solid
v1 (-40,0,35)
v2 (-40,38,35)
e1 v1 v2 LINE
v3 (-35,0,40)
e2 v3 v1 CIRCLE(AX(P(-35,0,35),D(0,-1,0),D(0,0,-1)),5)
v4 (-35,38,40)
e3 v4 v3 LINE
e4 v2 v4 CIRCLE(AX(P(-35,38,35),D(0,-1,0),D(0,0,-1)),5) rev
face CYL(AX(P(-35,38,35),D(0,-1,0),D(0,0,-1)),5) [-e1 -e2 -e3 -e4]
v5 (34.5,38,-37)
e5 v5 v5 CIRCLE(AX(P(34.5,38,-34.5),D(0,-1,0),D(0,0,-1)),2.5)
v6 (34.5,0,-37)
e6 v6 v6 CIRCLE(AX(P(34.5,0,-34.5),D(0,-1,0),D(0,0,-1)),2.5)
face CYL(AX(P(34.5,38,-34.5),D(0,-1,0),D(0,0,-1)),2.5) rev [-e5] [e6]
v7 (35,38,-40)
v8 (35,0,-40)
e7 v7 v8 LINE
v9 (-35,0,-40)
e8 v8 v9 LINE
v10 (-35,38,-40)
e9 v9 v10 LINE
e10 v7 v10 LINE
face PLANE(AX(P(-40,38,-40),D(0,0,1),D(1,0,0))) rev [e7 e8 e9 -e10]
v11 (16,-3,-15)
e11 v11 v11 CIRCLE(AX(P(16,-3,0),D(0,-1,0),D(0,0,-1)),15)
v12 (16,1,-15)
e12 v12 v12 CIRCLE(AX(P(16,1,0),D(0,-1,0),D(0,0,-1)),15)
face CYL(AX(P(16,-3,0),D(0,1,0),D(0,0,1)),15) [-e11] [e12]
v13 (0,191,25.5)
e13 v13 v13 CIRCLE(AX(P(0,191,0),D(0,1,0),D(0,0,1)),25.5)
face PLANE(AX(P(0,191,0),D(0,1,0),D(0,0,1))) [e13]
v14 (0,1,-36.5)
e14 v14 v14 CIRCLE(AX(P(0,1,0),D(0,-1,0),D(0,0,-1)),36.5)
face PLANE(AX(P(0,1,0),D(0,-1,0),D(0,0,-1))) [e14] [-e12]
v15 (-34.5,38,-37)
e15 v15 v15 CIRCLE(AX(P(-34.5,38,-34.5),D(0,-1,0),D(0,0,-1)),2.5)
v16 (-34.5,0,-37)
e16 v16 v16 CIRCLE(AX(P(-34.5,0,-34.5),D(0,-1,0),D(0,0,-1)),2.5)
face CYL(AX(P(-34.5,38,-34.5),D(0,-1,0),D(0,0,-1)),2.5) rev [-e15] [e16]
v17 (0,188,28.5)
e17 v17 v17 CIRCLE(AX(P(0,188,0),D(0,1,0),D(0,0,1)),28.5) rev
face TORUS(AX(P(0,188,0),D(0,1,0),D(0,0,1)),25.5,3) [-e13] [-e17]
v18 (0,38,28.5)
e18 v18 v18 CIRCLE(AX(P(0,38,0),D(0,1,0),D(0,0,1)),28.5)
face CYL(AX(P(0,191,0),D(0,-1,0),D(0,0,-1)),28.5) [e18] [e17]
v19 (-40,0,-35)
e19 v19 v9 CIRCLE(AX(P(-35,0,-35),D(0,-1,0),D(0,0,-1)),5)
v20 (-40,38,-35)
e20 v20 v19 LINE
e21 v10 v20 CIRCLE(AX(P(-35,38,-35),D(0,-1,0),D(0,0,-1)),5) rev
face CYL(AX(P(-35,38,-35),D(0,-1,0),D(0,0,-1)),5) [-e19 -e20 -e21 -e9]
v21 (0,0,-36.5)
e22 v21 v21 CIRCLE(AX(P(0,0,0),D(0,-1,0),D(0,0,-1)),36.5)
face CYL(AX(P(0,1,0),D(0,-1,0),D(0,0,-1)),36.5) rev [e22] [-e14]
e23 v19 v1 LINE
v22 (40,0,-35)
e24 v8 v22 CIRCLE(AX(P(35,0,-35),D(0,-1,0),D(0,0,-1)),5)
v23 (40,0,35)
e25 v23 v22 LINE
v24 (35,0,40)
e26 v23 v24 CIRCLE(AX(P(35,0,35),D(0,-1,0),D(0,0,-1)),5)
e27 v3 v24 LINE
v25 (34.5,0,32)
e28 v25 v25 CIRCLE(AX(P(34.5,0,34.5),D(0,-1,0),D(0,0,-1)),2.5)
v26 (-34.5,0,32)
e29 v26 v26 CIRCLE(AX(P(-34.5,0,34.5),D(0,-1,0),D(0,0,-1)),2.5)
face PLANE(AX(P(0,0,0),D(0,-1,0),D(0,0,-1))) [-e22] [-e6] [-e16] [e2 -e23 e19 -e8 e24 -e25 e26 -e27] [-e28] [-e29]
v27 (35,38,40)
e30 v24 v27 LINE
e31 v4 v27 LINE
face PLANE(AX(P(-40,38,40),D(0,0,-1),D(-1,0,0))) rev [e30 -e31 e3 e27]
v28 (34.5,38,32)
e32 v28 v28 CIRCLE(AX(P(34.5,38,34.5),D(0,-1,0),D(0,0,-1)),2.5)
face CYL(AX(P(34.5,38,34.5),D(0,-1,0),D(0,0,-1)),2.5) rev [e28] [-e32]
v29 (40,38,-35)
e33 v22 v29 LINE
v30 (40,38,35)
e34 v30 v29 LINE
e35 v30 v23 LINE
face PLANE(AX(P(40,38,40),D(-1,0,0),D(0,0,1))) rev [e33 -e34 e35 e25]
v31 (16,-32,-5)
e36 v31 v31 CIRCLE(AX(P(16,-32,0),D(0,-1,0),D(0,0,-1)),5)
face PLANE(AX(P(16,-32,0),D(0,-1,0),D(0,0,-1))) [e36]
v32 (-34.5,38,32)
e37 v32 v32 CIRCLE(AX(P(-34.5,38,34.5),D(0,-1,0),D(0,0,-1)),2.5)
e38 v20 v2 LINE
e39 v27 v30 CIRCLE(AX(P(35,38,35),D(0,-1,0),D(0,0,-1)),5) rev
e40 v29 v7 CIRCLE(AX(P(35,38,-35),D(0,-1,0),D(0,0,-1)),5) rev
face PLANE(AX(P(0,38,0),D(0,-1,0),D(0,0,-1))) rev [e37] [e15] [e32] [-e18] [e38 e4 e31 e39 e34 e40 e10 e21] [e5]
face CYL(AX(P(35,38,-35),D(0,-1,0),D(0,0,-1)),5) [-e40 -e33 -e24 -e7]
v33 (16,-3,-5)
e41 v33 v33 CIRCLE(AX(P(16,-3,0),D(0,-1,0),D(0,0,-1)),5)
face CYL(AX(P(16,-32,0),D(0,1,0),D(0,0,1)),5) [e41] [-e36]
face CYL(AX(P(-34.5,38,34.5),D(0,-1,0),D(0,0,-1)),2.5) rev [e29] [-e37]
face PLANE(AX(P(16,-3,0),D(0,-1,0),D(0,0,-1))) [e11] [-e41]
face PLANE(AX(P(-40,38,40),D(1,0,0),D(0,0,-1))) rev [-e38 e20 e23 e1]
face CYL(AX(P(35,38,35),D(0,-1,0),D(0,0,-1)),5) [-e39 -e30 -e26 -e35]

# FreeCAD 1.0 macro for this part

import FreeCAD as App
import Part
import Sketcher

V = App.Vector
Q = App.Units.Quantity


def edges_at(feature, points):
    """Names of the edges that pass closest to the given points."""
    edges = feature.Shape.Edges
    near = lambda p: min(range(len(edges)), key=lambda i: edges[i].distToShape(Part.Vertex(*p))[0])
    return sorted({f"Edge{near(p) + 1}" for p in points})


def add_polygon(sketch, points):
    """Adds a closed chain of lines whose ends are joined by coincident constraints."""
    first, n = sketch.GeometryCount, len(points)
    for a, b in zip(points, points[1:] + points[:1]):
        sketch.addGeometry(Part.LineSegment(App.Vector(*a, 0), App.Vector(*b, 0)), False)
    for i in range(n):
        sketch.addConstraint(Sketcher.Constraint("Coincident", first + i, 2, first + (i + 1) % n, 1))

doc = App.newDocument("Part")
params = doc.addObject("Spreadsheet::Sheet", "Params")
for row, (alias, value) in enumerate([
    ("sketch1_width", "80 mm"),
    ("pad1_length", "38 mm"),
    ("sketch2_diameter", "57 mm"),
    ("pad2_length", "153 mm"),
    ("sketch3_diameter", "73 mm"),
    ("pocket1_length", "1 mm"),
    ("sketch4_diameter", "30 mm"),
    ("pad3_length", "4 mm"),
    ("sketch5_diameter", "10 mm"),
    ("pad4_length", "29 mm"),
    ("fillet_radius", "5 mm"),
    ("sketch6_diameter", "5 mm"),
    ("pocket2_length", "38 mm"),
    ("sketch7_diameter", "5 mm"),
    ("pocket3_length", "38 mm"),
    ("fillet2_radius", "3 mm"),
], start=1):
    params.set(f"A{row}", alias)
    params.set(f"B{row}", "=" + value)
    params.setAlias(f"B{row}", alias)

body = doc.addObject("PartDesign::Body", "Body")

# Sketch on XZ plane
sketch1 = doc.addObject("Sketcher::SketchObject", "Sketch")
body.addObject(sketch1)
sketch1.AttachmentSupport = (doc.XZ_Plane, [""])
sketch1.MapMode = "FlatFace"
add_polygon(sketch1, [(-40, -40), (-40, 40), (40, 40), (40, -40)])  # lines 0-3
sketch1.addConstraint([
    Sketcher.Constraint("Vertical", 0),
    Sketcher.Constraint("Horizontal", 1),
    Sketcher.Constraint("Vertical", 2),
    Sketcher.Constraint("Horizontal", 3),
    Sketcher.Constraint("Symmetric", 0, 2, 2, 2, -1, 1),
    Sketcher.Constraint("Equal", 3, 0),
    Sketcher.Constraint("DistanceX", 1, 1, 1, 2, Q("80 mm")),
])
sketch1.setExpression("Constraints[10]", "Params.sketch1_width")
pad1 = doc.addObject("PartDesign::Pad", "Pad")
body.addObject(pad1)
pad1.Profile = sketch1
pad1.setExpression("Length", "Params.pad1_length")
pad1.Reversed = True

# Sketch on XZ plane
sketch2 = doc.addObject("Sketcher::SketchObject", "Sketch001")
body.addObject(sketch2)
sketch2.AttachmentSupport = (doc.XZ_Plane, [""])
sketch2.MapMode = "FlatFace"
sketch2.AttachmentOffset = App.Placement(V(0, 0, -38), App.Rotation())
sketch2.addGeometry(Part.Circle(V(0, 0, 0), V(0, 0, 1), 28), False)
sketch2.addConstraint([
    Sketcher.Constraint("Coincident", 0, 3, -1, 1),
    Sketcher.Constraint("Diameter", 0, Q("57 mm")),
])
sketch2.setExpression("Constraints[1]", "Params.sketch2_diameter")
pad2 = doc.addObject("PartDesign::Pad", "Pad001")
body.addObject(pad2)
pad2.Profile = sketch2
pad2.setExpression("Length", "Params.pad2_length")
pad2.Reversed = True

# Sketch on XZ plane
sketch3 = doc.addObject("Sketcher::SketchObject", "Sketch002")
body.addObject(sketch3)
sketch3.AttachmentSupport = (doc.XZ_Plane, [""])
sketch3.MapMode = "FlatFace"
sketch3.addGeometry(Part.Circle(V(0, 0, 0), V(0, 0, 1), 36), False)
sketch3.addConstraint([
    Sketcher.Constraint("Coincident", 0, 3, -1, 1),
    Sketcher.Constraint("Diameter", 0, Q("73 mm")),
])
sketch3.setExpression("Constraints[1]", "Params.sketch3_diameter")
pocket1 = doc.addObject("PartDesign::Pocket", "Pocket")
body.addObject(pocket1)
pocket1.Profile = sketch3
pocket1.setExpression("Length", "Params.pocket1_length")

# Sketch on XZ plane
sketch4 = doc.addObject("Sketcher::SketchObject", "Sketch003")
body.addObject(sketch4)
sketch4.AttachmentSupport = (doc.XZ_Plane, [""])
sketch4.MapMode = "FlatFace"
sketch4.AttachmentOffset = App.Placement(V(0, 0, -1), App.Rotation())
sketch4.addGeometry(Part.Circle(V(16, 0, 0), V(0, 0, 1), 15), False)
sketch4.addConstraint([
    Sketcher.Constraint("PointOnObject", 0, 3, -1),
    Sketcher.Constraint("Diameter", 0, Q("30 mm")),
    Sketcher.Constraint("DistanceX", -1, 1, 0, 3, Q("16 mm")),
])
sketch4.setExpression("Constraints[1]", "Params.sketch4_diameter")
pad3 = doc.addObject("PartDesign::Pad", "Pad002")
body.addObject(pad3)
pad3.Profile = sketch4
pad3.setExpression("Length", "Params.pad3_length")

# Sketch on XZ plane
sketch5 = doc.addObject("Sketcher::SketchObject", "Sketch004")
body.addObject(sketch5)
sketch5.AttachmentSupport = (doc.XZ_Plane, [""])
sketch5.MapMode = "FlatFace"
sketch5.AttachmentOffset = App.Placement(V(0, 0, 3), App.Rotation())
sketch5.addGeometry(Part.Circle(V(16, 0, 0), V(0, 0, 1), 5), False)
sketch5.addConstraint([
    Sketcher.Constraint("PointOnObject", 0, 3, -1),
    Sketcher.Constraint("Diameter", 0, Q("10 mm")),
    Sketcher.Constraint("DistanceX", -1, 1, 0, 3, Q("16 mm")),
])
sketch5.setExpression("Constraints[1]", "Params.sketch5_diameter")
pad4 = doc.addObject("PartDesign::Pad", "Pad003")
body.addObject(pad4)
pad4.Profile = sketch5
pad4.setExpression("Length", "Params.pad4_length")
doc.recompute()

fillet = doc.addObject("PartDesign::Fillet", "Fillet")
body.addObject(fillet)
fillet.Base = (pad4, edges_at(pad4, [
    (40, 19, 40),
    (-40, 19, 40),
    (-40, 19, -40),
    (40, 19, -40),
]))
fillet.setExpression("Radius", "Params.fillet_radius")

# Sketch on XZ plane
sketch6 = doc.addObject("Sketcher::SketchObject", "Sketch005")
body.addObject(sketch6)
sketch6.AttachmentSupport = (doc.XZ_Plane, [""])
sketch6.MapMode = "FlatFace"
sketch6.addGeometry(Part.Circle(V(-34.5, 34.5, 0), V(0, 0, 1), 2.5), False)
sketch6.addConstraint([
    Sketcher.Constraint("Diameter", 0, Q("5 mm")),
    Sketcher.Constraint("DistanceX", 0, 3, -1, 1, Q("34.5 mm")),
    Sketcher.Constraint("DistanceY", -1, 1, 0, 3, Q("34.5 mm")),
])
sketch6.setExpression("Constraints[0]", "Params.sketch6_diameter")
pocket2 = doc.addObject("PartDesign::Pocket", "Pocket001")
body.addObject(pocket2)
pocket2.Profile = sketch6
pocket2.setExpression("Length", "Params.pocket2_length")

# Sketch on XZ plane
sketch7 = doc.addObject("Sketcher::SketchObject", "Sketch006")
body.addObject(sketch7)
sketch7.AttachmentSupport = (doc.XZ_Plane, [""])
sketch7.MapMode = "FlatFace"
sketch7.addGeometry([
    Part.Circle(V(34.5, 34.5, 0), V(0, 0, 1), 2.5),
    Part.Circle(V(34.5, -34.5, 0), V(0, 0, 1), 2.5),
    Part.Circle(V(-34.5, -34.5, 0), V(0, 0, 1), 2.5),
], False)
sketch7.addConstraint([
    Sketcher.Constraint("Equal", 0, 1),
    Sketcher.Constraint("Equal", 1, 2),
    Sketcher.Constraint("Symmetric", 0, 3, 2, 3, -1, 1),
    Sketcher.Constraint("Symmetric", 1, 3, 2, 3, -2),
    Sketcher.Constraint("Diameter", 0, Q("5 mm")),
    Sketcher.Constraint("DistanceY", 1, 3, 0, 3, Q("69 mm")),
    Sketcher.Constraint("DistanceX", 2, 3, 1, 3, Q("69 mm")),
])
sketch7.setExpression("Constraints[4]", "Params.sketch7_diameter")
pocket3 = doc.addObject("PartDesign::Pocket", "Pocket002")
body.addObject(pocket3)
pocket3.Profile = sketch7
pocket3.setExpression("Length", "Params.pocket3_length")
doc.recompute()

fillet2 = doc.addObject("PartDesign::Fillet", "Fillet001")
body.addObject(fillet2)
fillet2.Base = (pocket3, edges_at(pocket3, [(-28.5, 191, 0)]))
fillet2.setExpression("Radius", "Params.fillet2_radius")

doc.recompute()
